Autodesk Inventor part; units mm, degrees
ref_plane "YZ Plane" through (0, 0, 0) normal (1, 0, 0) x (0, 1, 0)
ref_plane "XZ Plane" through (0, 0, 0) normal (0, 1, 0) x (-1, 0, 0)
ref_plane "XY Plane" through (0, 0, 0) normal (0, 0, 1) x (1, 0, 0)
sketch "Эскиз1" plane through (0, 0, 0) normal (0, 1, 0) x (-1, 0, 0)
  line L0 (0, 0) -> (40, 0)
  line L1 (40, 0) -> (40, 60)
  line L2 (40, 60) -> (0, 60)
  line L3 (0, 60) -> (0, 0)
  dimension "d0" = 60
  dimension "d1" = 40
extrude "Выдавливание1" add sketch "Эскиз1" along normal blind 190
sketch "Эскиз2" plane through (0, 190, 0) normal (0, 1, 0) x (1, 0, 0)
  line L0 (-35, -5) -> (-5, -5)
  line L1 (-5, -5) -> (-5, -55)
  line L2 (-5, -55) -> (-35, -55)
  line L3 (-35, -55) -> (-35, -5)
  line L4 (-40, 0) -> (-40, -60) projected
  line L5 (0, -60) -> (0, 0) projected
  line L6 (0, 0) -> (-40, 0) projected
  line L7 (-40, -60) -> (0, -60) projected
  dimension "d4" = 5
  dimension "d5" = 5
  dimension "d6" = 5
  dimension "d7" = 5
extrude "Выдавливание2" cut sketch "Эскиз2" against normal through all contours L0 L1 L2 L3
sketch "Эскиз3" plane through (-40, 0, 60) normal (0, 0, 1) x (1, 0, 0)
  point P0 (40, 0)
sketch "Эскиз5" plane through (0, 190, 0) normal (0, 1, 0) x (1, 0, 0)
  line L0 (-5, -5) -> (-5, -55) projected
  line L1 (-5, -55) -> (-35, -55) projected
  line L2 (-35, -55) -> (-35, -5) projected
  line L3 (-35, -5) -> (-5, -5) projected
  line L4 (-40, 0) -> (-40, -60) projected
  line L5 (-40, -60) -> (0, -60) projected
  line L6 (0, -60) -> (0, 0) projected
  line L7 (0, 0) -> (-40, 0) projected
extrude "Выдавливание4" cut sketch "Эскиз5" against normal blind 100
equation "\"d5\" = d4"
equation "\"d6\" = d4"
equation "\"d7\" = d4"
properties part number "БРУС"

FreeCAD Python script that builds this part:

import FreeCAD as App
import Part
import Sketcher
Q = App.Units.Quantity


def add_polygon(sketch, points):
    """Adds a closed chain of lines whose ends are joined by coincident constraints."""
    first, n = sketch.GeometryCount, len(points)
    for a, b in zip(points, points[1:] + points[:1]):
        sketch.addGeometry(Part.LineSegment(App.Vector(*a, 0), App.Vector(*b, 0)), False)
    for i in range(n):
        sketch.addConstraint(Sketcher.Constraint("Coincident", first + i, 2, first + (i + 1) % n, 1))

doc = App.newDocument("Part")
params = doc.addObject("Spreadsheet::Sheet", "Params")
for row, (alias, value) in enumerate([
    ("sketch1_width", "40 mm"),
    ("sketch1_height", "60 mm"),
    ("pad1_length", "190 mm"),
    ("sketch2_width", "30 mm"),
    ("sketch2_height", "50 mm"),
    ("sketch3_width", "40 mm"),
    ("sketch3_width2", "30 mm"),
    ("sketch3_height", "60 mm"),
    ("sketch3_height2", "50 mm"),
    ("pocket2_length", "100 mm"),
], start=1):
    params.set(f"A{row}", alias)
    params.set(f"B{row}", "=" + value)
    params.setAlias(f"B{row}", alias)

body = doc.addObject("PartDesign::Body", "Body")

# Sketch on XZ plane
sketch1 = doc.addObject("Sketcher::SketchObject", "Sketch")
body.addObject(sketch1)
sketch1.AttachmentSupport = (doc.XZ_Plane, [""])
sketch1.MapMode = "FlatFace"
add_polygon(sketch1, [(0, 60), (0, 0), (-40, 0), (-40, 60)])  # lines 0-3
sketch1.addConstraint(Sketcher.Constraint("Vertical", 0))
sketch1.addConstraint(Sketcher.Constraint("Horizontal", 1))
sketch1.addConstraint(Sketcher.Constraint("Vertical", 2))
sketch1.addConstraint(Sketcher.Constraint("Horizontal", 3))
sketch1.addConstraint(Sketcher.Constraint("Coincident", 0, 2, -1, 1))
sketch1.addConstraint(Sketcher.Constraint("DistanceX", 1, 2, 1, 1, Q("40 mm")))
sketch1.addConstraint(Sketcher.Constraint("DistanceY", 0, 2, 0, 1, Q("60 mm")))
sketch1.setExpression("Constraints[9]", "Params.sketch1_width")
sketch1.setExpression("Constraints[10]", "Params.sketch1_height")
pad1 = doc.addObject("PartDesign::Pad", "Pad")
body.addObject(pad1)
pad1.Profile = sketch1
pad1.setExpression("Length", "Params.pad1_length")
pad1.Reversed = True

# Sketch on XZ plane
sketch2 = doc.addObject("Sketcher::SketchObject", "Sketch001")
body.addObject(sketch2)
sketch2.AttachmentSupport = (doc.XZ_Plane, [""])
sketch2.MapMode = "FlatFace"
sketch2.AttachmentOffset = App.Placement(App.Vector(0, 0, -190), App.Rotation())
add_polygon(sketch2, [(-5, 5), (-35, 5), (-35, 55), (-5, 55)])  # lines 0-3
sketch2.addConstraint(Sketcher.Constraint("Horizontal", 0))
sketch2.addConstraint(Sketcher.Constraint("Vertical", 1))
sketch2.addConstraint(Sketcher.Constraint("Horizontal", 2))
sketch2.addConstraint(Sketcher.Constraint("Vertical", 3))
sketch2.addConstraint(Sketcher.Constraint("DistanceY", -1, 1, 0, 2, Q("5 mm")))
sketch2.addConstraint(Sketcher.Constraint("DistanceX", 2, 2, -1, 1, Q("5 mm")))
sketch2.addConstraint(Sketcher.Constraint("DistanceX", 0, 2, 0, 1, Q("30 mm")))
sketch2.addConstraint(Sketcher.Constraint("DistanceY", 1, 1, 1, 2, Q("50 mm")))
sketch2.setExpression("Constraints[10]", "Params.sketch2_width")
sketch2.setExpression("Constraints[11]", "Params.sketch2_height")
pocket1 = doc.addObject("PartDesign::Pocket", "Pocket")
body.addObject(pocket1)
pocket1.Profile = sketch2
pocket1.Type = "ThroughAll"
pocket1.Reversed = True

# Sketch on XZ plane
sketch3 = doc.addObject("Sketcher::SketchObject", "Sketch002")
body.addObject(sketch3)
sketch3.AttachmentSupport = (doc.XZ_Plane, [""])
sketch3.MapMode = "FlatFace"
sketch3.AttachmentOffset = App.Placement(App.Vector(0, 0, -190), App.Rotation())
add_polygon(sketch3, [(0, 0), (-40, 0), (-40, 60), (0, 60)])  # lines 0-3
add_polygon(sketch3, [(-35, 5), (-5, 5), (-5, 55), (-35, 55)])  # lines 4-7
sketch3.addConstraint(Sketcher.Constraint("Horizontal", 0))
sketch3.addConstraint(Sketcher.Constraint("Vertical", 1))
sketch3.addConstraint(Sketcher.Constraint("Horizontal", 2))
sketch3.addConstraint(Sketcher.Constraint("Vertical", 3))
sketch3.addConstraint(Sketcher.Constraint("Horizontal", 4))
sketch3.addConstraint(Sketcher.Constraint("Vertical", 5))
sketch3.addConstraint(Sketcher.Constraint("Horizontal", 6))
sketch3.addConstraint(Sketcher.Constraint("Vertical", 7))
sketch3.addConstraint(Sketcher.Constraint("Coincident", 3, 2, -1, 1))
sketch3.addConstraint(Sketcher.Constraint("DistanceX", 0, 2, 0, 1, Q("40 mm")))
sketch3.addConstraint(Sketcher.Constraint("DistanceX", 4, 1, 4, 2, Q("30 mm")))
sketch3.addConstraint(Sketcher.Constraint("DistanceY", 1, 1, 1, 2, Q("60 mm")))
sketch3.addConstraint(Sketcher.Constraint("DistanceY", 5, 1, 5, 2, Q("50 mm")))
sketch3.addConstraint(Sketcher.Constraint("DistanceX", 4, 2, -1, 1, Q("5 mm")))
sketch3.addConstraint(Sketcher.Constraint("DistanceY", -1, 1, 4, 2, Q("5 mm")))
sketch3.setExpression("Constraints[17]", "Params.sketch3_width")
sketch3.setExpression("Constraints[18]", "Params.sketch3_width2")
sketch3.setExpression("Constraints[19]", "Params.sketch3_height")
sketch3.setExpression("Constraints[20]", "Params.sketch3_height2")
pocket2 = doc.addObject("PartDesign::Pocket", "Pocket001")
body.addObject(pocket2)
pocket2.Profile = sketch3
pocket2.setExpression("Length", "Params.pocket2_length")
pocket2.Reversed = True

doc.recompute()
